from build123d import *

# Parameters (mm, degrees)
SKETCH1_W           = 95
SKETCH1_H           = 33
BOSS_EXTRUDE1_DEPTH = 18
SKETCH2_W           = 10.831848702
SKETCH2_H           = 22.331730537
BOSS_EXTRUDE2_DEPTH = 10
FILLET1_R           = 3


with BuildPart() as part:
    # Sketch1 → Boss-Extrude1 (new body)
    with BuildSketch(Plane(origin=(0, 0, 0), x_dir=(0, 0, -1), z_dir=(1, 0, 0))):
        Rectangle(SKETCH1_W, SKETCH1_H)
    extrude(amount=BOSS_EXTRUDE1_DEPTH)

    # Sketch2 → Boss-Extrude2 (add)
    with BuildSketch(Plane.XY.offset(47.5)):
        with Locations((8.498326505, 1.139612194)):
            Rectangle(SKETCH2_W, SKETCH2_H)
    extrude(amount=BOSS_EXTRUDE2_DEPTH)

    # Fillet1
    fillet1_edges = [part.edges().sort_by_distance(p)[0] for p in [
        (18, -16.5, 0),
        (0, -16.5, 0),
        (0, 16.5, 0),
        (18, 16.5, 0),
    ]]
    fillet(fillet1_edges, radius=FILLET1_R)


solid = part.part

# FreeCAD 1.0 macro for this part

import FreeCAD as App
import Part
import Sketcher
Q = App.Units.Quantity


def edges_at(feature, points):
    """Names of the edges that pass closest to the given points."""
    edges = feature.Shape.Edges
    near = lambda p: min(range(len(edges)), key=lambda i: edges[i].distToShape(Part.Vertex(*p))[0])
    return sorted({f"Edge{near(p) + 1}" for p in points})

doc = App.newDocument("Part")
body = doc.addObject("PartDesign::Body", "Body")

# Sketch on YZ plane
sketch1 = body.newObject("Sketcher::SketchObject", "Sketch")
sketch1.AttachmentSupport = (doc.getObject("YZ_Plane"), [""])
sketch1.MapMode = "FlatFace"
sketch1.addGeometry([
    Part.LineSegment(App.Vector(16, 48, 0), App.Vector(-16, 48, 0)),
    Part.LineSegment(App.Vector(-16, 48, 0), App.Vector(-16, -48, 0)),
    Part.LineSegment(App.Vector(-16, -48, 0), App.Vector(16, -48, 0)),
    Part.LineSegment(App.Vector(16, -48, 0), App.Vector(16, 48, 0)),
], False)
sketch1.addConstraint([
    Sketcher.Constraint("Coincident", 0, 2, 1, 1),
    Sketcher.Constraint("Coincident", 1, 2, 2, 1),
    Sketcher.Constraint("Coincident", 2, 2, 3, 1),
    Sketcher.Constraint("Coincident", 3, 2, 0, 1),
    Sketcher.Constraint("Horizontal", 0),
    Sketcher.Constraint("Vertical", 1),
    Sketcher.Constraint("Horizontal", 2),
    Sketcher.Constraint("Vertical", 3),
    Sketcher.Constraint("Symmetric", 0, 2, 2, 2, -1, 1),
    Sketcher.Constraint("DistanceX", 0, 2, 0, 1, Q("33 mm")),
    Sketcher.Constraint("DistanceY", 1, 2, 1, 1, Q("95 mm")),
])
pad1 = body.newObject("PartDesign::Pad", "Pad")
pad1.Profile = sketch1
pad1.Length = 18

# Sketch on XY plane
sketch2 = body.newObject("Sketcher::SketchObject", "Sketch001")
sketch2.AttachmentSupport = (doc.getObject("XY_Plane"), [""])
sketch2.MapMode = "FlatFace"
sketch2.AttachmentOffset = App.Placement(App.Vector(0, 0, 47.5), App.Rotation())
sketch2.addGeometry([
    Part.LineSegment(App.Vector(3, 12, 0), App.Vector(3, -10, 0)),
    Part.LineSegment(App.Vector(3, -10, 0), App.Vector(14, -10, 0)),
    Part.LineSegment(App.Vector(14, -10, 0), App.Vector(14, 12, 0)),
    Part.LineSegment(App.Vector(14, 12, 0), App.Vector(3, 12, 0)),
], False)
sketch2.addConstraint([
    Sketcher.Constraint("Coincident", 0, 2, 1, 1),
    Sketcher.Constraint("Coincident", 1, 2, 2, 1),
    Sketcher.Constraint("Coincident", 2, 2, 3, 1),
    Sketcher.Constraint("Coincident", 3, 2, 0, 1),
    Sketcher.Constraint("Vertical", 0),
    Sketcher.Constraint("Horizontal", 1),
    Sketcher.Constraint("Vertical", 2),
    Sketcher.Constraint("Horizontal", 3),
    Sketcher.Constraint("DistanceX", 1, 1, 1, 2, Q("10.831849 mm")),
    Sketcher.Constraint("DistanceY", 0, 2, 0, 1, Q("22.331731 mm")),
    Sketcher.Constraint("DistanceX", -1, 1, 1, 2, Q("13.914251 mm")),
    Sketcher.Constraint("DistanceY", 0, 2, -1, 1, Q("10.026253 mm")),
])
pad2 = body.newObject("PartDesign::Pad", "Pad001")
pad2.Profile = sketch2
pad2.Length = 10
doc.recompute()

fillet = body.newObject("PartDesign::Fillet", "Fillet")
fillet.Base = (pad2, edges_at(pad2, [
    (18, -16.5, 0),
    (0, -16.5, 0),
    (0, 16.5, 0),
    (18, 16.5, 0),
]))
fillet.Radius = 3

doc.recompute()
